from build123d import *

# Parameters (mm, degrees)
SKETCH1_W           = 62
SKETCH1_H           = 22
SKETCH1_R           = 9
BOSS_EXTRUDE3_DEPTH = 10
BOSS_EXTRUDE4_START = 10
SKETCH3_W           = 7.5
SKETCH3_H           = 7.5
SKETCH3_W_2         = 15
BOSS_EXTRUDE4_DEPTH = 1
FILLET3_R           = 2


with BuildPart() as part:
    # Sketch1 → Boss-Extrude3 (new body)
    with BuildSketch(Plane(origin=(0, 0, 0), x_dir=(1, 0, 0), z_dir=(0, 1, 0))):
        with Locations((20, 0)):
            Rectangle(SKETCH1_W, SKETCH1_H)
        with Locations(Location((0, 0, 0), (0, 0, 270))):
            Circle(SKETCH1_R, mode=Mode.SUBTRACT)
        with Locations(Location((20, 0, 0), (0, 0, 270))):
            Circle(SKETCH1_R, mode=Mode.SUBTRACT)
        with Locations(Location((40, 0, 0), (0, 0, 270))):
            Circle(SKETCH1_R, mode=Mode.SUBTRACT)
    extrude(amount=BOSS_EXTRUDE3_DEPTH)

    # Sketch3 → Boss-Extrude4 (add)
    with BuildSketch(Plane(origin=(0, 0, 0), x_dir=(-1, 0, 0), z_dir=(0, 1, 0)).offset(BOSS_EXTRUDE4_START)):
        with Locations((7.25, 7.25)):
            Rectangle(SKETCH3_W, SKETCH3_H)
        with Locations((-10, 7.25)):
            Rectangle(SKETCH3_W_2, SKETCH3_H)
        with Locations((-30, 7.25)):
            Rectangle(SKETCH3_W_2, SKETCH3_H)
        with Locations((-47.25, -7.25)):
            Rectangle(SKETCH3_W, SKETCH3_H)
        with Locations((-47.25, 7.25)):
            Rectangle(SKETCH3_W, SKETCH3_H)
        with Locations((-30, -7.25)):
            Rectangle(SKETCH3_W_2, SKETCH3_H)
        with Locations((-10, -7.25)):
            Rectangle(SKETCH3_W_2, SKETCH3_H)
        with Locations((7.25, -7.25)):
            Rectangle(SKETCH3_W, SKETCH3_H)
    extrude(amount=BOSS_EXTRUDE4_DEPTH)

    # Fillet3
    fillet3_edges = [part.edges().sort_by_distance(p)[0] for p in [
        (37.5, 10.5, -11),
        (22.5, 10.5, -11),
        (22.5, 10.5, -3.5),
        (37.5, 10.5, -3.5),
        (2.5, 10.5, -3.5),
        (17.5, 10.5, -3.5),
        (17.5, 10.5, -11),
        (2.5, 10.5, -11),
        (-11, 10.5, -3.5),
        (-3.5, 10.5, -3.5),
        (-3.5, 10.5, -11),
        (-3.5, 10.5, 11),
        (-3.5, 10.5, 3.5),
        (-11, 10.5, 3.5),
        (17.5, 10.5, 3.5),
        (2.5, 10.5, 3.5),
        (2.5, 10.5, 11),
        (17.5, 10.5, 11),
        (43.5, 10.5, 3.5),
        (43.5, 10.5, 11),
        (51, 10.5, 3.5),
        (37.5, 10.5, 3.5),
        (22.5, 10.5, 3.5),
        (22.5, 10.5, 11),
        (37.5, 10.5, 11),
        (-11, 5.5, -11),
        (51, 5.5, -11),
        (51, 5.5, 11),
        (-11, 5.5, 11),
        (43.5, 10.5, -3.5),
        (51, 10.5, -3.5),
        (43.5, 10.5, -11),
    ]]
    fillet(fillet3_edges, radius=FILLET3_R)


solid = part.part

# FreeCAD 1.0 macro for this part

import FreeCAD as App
import Part
import Sketcher
Q = App.Units.Quantity


def edges_at(feature, points):
    """Names of the edges that pass closest to the given points."""
    edges = feature.Shape.Edges
    near = lambda p: min(range(len(edges)), key=lambda i: edges[i].distToShape(Part.Vertex(*p))[0])
    return sorted({f"Edge{near(p) + 1}" for p in points})

doc = App.newDocument("Part")
body = doc.addObject("PartDesign::Body", "Body")

sketch1 = doc.addObject("Sketcher::SketchObject", "Sketch")
body.addObject(sketch1)
sketch1.AttachmentSupport = (doc.XZ_Plane, [""])
sketch1.MapMode = "FlatFace"
sketch1.addGeometry([
    Part.LineSegment(App.Vector(-11, -11, 0), App.Vector(-11, 11, 0)),
    Part.LineSegment(App.Vector(-11, 11, 0), App.Vector(51, 11, 0)),
    Part.LineSegment(App.Vector(51, 11, 0), App.Vector(51, -11, 0)),
    Part.LineSegment(App.Vector(51, -11, 0), App.Vector(-11, -11, 0)),
    Part.Circle(App.Vector(0, 0, 0), App.Vector(0, 0, 1), 9),
    Part.Circle(App.Vector(20, 0, 0), App.Vector(0, 0, 1), 9),
    Part.Circle(App.Vector(40, 0, 0), App.Vector(0, 0, 1), 9),
], False)
sketch1.addConstraint([
    Sketcher.Constraint("Coincident", 0, 2, 1, 1),
    Sketcher.Constraint("Coincident", 1, 2, 2, 1),
    Sketcher.Constraint("Coincident", 2, 2, 3, 1),
    Sketcher.Constraint("Coincident", 3, 2, 0, 1),
    Sketcher.Constraint("Vertical", 0),
    Sketcher.Constraint("Horizontal", 1),
    Sketcher.Constraint("Vertical", 2),
    Sketcher.Constraint("Horizontal", 3),
    Sketcher.Constraint("Coincident", 4, 3, -1, 1),
    Sketcher.Constraint("Equal", 4, 5),
    Sketcher.Constraint("Equal", 5, 6),
    Sketcher.Constraint("PointOnObject", 5, 3, -1),
    Sketcher.Constraint("PointOnObject", 6, 3, -1),
    Sketcher.Constraint("Diameter", 4, Q("18 mm")),
    Sketcher.Constraint("DistanceX", 1, 1, 1, 2, Q("62 mm")),
    Sketcher.Constraint("DistanceY", 0, 1, 0, 2, Q("22 mm")),
    Sketcher.Constraint("DistanceX", -1, 1, 5, 3, Q("20 mm")),
    Sketcher.Constraint("DistanceX", -1, 1, 6, 3, Q("40 mm")),
    Sketcher.Constraint("DistanceX", 0, 2, -1, 1, Q("11 mm")),
    Sketcher.Constraint("DistanceY", -1, 1, 0, 2, Q("11 mm")),
])
pad1 = doc.addObject("PartDesign::Pad", "Pad")
body.addObject(pad1)
pad1.Profile = sketch1
pad1.Length = 10
pad1.Reversed = True

sketch2 = doc.addObject("Sketcher::SketchObject", "Sketch001")
body.addObject(sketch2)
sketch2.AttachmentSupport = (doc.XZ_Plane, [""])
sketch2.MapMode = "FlatFace"
sketch2.AttachmentOffset = App.Placement(App.Vector(0, 0, -10), App.Rotation())
sketch2.addGeometry([
    Part.LineSegment(App.Vector(-3.5, 11, 0), App.Vector(-3.5, 3.5, 0)),
    Part.LineSegment(App.Vector(-3.5, 3.5, 0), App.Vector(-11, 3.5, 0)),
    Part.LineSegment(App.Vector(-11, 3.5, 0), App.Vector(-11, 11, 0)),
    Part.LineSegment(App.Vector(-11, 11, 0), App.Vector(-3.5, 11, 0)),
    Part.LineSegment(App.Vector(17.5, 11, 0), App.Vector(17.5, 3.5, 0)),
    Part.LineSegment(App.Vector(17.5, 3.5, 0), App.Vector(2.5, 3.5, 0)),
    Part.LineSegment(App.Vector(2.5, 3.5, 0), App.Vector(2.5, 11, 0)),
    Part.LineSegment(App.Vector(2.5, 11, 0), App.Vector(17.5, 11, 0)),
    Part.LineSegment(App.Vector(37.5, 11, 0), App.Vector(37.5, 3.5, 0)),
    Part.LineSegment(App.Vector(37.5, 3.5, 0), App.Vector(22.5, 3.5, 0)),
    Part.LineSegment(App.Vector(22.5, 3.5, 0), App.Vector(22.5, 11, 0)),
    Part.LineSegment(App.Vector(22.5, 11, 0), App.Vector(37.5, 11, 0)),
    Part.LineSegment(App.Vector(51, -3.5, 0), App.Vector(51, -11, 0)),
    Part.LineSegment(App.Vector(51, -11, 0), App.Vector(43.5, -11, 0)),
    Part.LineSegment(App.Vector(43.5, -11, 0), App.Vector(43.5, -3.5, 0)),
    Part.LineSegment(App.Vector(43.5, -3.5, 0), App.Vector(51, -3.5, 0)),
    Part.LineSegment(App.Vector(51, 11, 0), App.Vector(51, 3.5, 0)),
    Part.LineSegment(App.Vector(51, 3.5, 0), App.Vector(43.5, 3.5, 0)),
    Part.LineSegment(App.Vector(43.5, 3.5, 0), App.Vector(43.5, 11, 0)),
    Part.LineSegment(App.Vector(43.5, 11, 0), App.Vector(51, 11, 0)),
    Part.LineSegment(App.Vector(37.5, -3.5, 0), App.Vector(37.5, -11, 0)),
    Part.LineSegment(App.Vector(37.5, -11, 0), App.Vector(22.5, -11, 0)),
    Part.LineSegment(App.Vector(22.5, -11, 0), App.Vector(22.5, -3.5, 0)),
    Part.LineSegment(App.Vector(22.5, -3.5, 0), App.Vector(37.5, -3.5, 0)),
    Part.LineSegment(App.Vector(17.5, -3.5, 0), App.Vector(17.5, -11, 0)),
    Part.LineSegment(App.Vector(17.5, -11, 0), App.Vector(2.5, -11, 0)),
    Part.LineSegment(App.Vector(2.5, -11, 0), App.Vector(2.5, -3.5, 0)),
    Part.LineSegment(App.Vector(2.5, -3.5, 0), App.Vector(17.5, -3.5, 0)),
    Part.LineSegment(App.Vector(-3.5, -3.5, 0), App.Vector(-3.5, -11, 0)),
    Part.LineSegment(App.Vector(-3.5, -11, 0), App.Vector(-11, -11, 0)),
    Part.LineSegment(App.Vector(-11, -11, 0), App.Vector(-11, -3.5, 0)),
    Part.LineSegment(App.Vector(-11, -3.5, 0), App.Vector(-3.5, -3.5, 0)),
], False)
sketch2.addConstraint([
    Sketcher.Constraint("Coincident", 0, 2, 1, 1),
    Sketcher.Constraint("Coincident", 1, 2, 2, 1),
    Sketcher.Constraint("Coincident", 2, 2, 3, 1),
    Sketcher.Constraint("Coincident", 3, 2, 0, 1),
    Sketcher.Constraint("Coincident", 4, 2, 5, 1),
    Sketcher.Constraint("Coincident", 5, 2, 6, 1),
    Sketcher.Constraint("Coincident", 6, 2, 7, 1),
    Sketcher.Constraint("Coincident", 7, 2, 4, 1),
    Sketcher.Constraint("Coincident", 8, 2, 9, 1),
    Sketcher.Constraint("Coincident", 9, 2, 10, 1),
    Sketcher.Constraint("Coincident", 10, 2, 11, 1),
    Sketcher.Constraint("Coincident", 11, 2, 8, 1),
    Sketcher.Constraint("Coincident", 12, 2, 13, 1),
    Sketcher.Constraint("Coincident", 13, 2, 14, 1),
    Sketcher.Constraint("Coincident", 14, 2, 15, 1),
    Sketcher.Constraint("Coincident", 15, 2, 12, 1),
    Sketcher.Constraint("Coincident", 16, 2, 17, 1),
    Sketcher.Constraint("Coincident", 17, 2, 18, 1),
    Sketcher.Constraint("Coincident", 18, 2, 19, 1),
    Sketcher.Constraint("Coincident", 19, 2, 16, 1),
    Sketcher.Constraint("Coincident", 20, 2, 21, 1),
    Sketcher.Constraint("Coincident", 21, 2, 22, 1),
    Sketcher.Constraint("Coincident", 22, 2, 23, 1),
    Sketcher.Constraint("Coincident", 23, 2, 20, 1),
    Sketcher.Constraint("Coincident", 24, 2, 25, 1),
    Sketcher.Constraint("Coincident", 25, 2, 26, 1),
    Sketcher.Constraint("Coincident", 26, 2, 27, 1),
    Sketcher.Constraint("Coincident", 27, 2, 24, 1),
    Sketcher.Constraint("Coincident", 28, 2, 29, 1),
    Sketcher.Constraint("Coincident", 29, 2, 30, 1),
    Sketcher.Constraint("Coincident", 30, 2, 31, 1),
    Sketcher.Constraint("Coincident", 31, 2, 28, 1),
    Sketcher.Constraint("Vertical", 0),
    Sketcher.Constraint("Horizontal", 1),
    Sketcher.Constraint("Vertical", 2),
    Sketcher.Constraint("Horizontal", 3),
    Sketcher.Constraint("Vertical", 4),
    Sketcher.Constraint("Horizontal", 5),
    Sketcher.Constraint("Vertical", 6),
    Sketcher.Constraint("Horizontal", 7),
    Sketcher.Constraint("Vertical", 8),
    Sketcher.Constraint("Horizontal", 9),
    Sketcher.Constraint("Vertical", 10),
    Sketcher.Constraint("Horizontal", 11),
    Sketcher.Constraint("Vertical", 12),
    Sketcher.Constraint("Horizontal", 13),
    Sketcher.Constraint("Vertical", 14),
    Sketcher.Constraint("Horizontal", 15),
    Sketcher.Constraint("Vertical", 16),
    Sketcher.Constraint("Horizontal", 17),
    Sketcher.Constraint("Vertical", 18),
    Sketcher.Constraint("Horizontal", 19),
    Sketcher.Constraint("Vertical", 20),
    Sketcher.Constraint("Horizontal", 21),
    Sketcher.Constraint("Vertical", 22),
    Sketcher.Constraint("Horizontal", 23),
    Sketcher.Constraint("Vertical", 24),
    Sketcher.Constraint("Horizontal", 25),
    Sketcher.Constraint("Vertical", 26),
    Sketcher.Constraint("Horizontal", 27),
    Sketcher.Constraint("Vertical", 28),
    Sketcher.Constraint("Horizontal", 29),
    Sketcher.Constraint("Vertical", 30),
    Sketcher.Constraint("Horizontal", 31),
    Sketcher.Constraint("Symmetric", 15, 2, 16, 2, -1),
    Sketcher.Constraint("Symmetric", 13, 2, 18, 2, -1),
    Sketcher.Constraint("Symmetric", 11, 2, 20, 2, -1),
    Sketcher.Constraint("Symmetric", 9, 2, 22, 2, -1),
    Sketcher.Constraint("Symmetric", 7, 2, 24, 2, -1),
    Sketcher.Constraint("Symmetric", 5, 2, 26, 2, -1),
    Sketcher.Constraint("Symmetric", 3, 2, 28, 2, -1),
    Sketcher.Constraint("Symmetric", 1, 2, 30, 2, -1),
    Sketcher.Constraint("Horizontal", 1, 2, 4, 2),
    Sketcher.Constraint("Horizontal", 3, 2, 6, 2),
    Sketcher.Constraint("Horizontal", 5, 2, 8, 2),
    Sketcher.Constraint("Horizontal", 7, 2, 10, 2),
    Sketcher.Constraint("Horizontal", 9, 2, 16, 2),
    Sketcher.Constraint("Horizontal", 11, 2, 18, 2),
    Sketcher.Constraint("Equal", 7, 9),
    Sketcher.Constraint("Equal", 3, 13),
    Sketcher.Constraint("Equal", 31, 0),
    Sketcher.Constraint("DistanceX", 5, 2, 5, 1, Q("15 mm")),
    Sketcher.Constraint("DistanceX", 1, 2, 1, 1, Q("7.5 mm")),
    Sketcher.Constraint("DistanceX", 1, 2, -1, 1, Q("11 mm")),
    Sketcher.Constraint("DistanceY", -1, 1, 2, 2, Q("11 mm")),
    Sketcher.Constraint("DistanceX", -1, 1, 12, 2, Q("51 mm")),
    Sketcher.Constraint("DistanceX", 0, 2, 4, 2, Q("21 mm")),
    Sketcher.Constraint("DistanceX", 4, 2, 8, 2, Q("20 mm")),
])
pad2 = doc.addObject("PartDesign::Pad", "Pad001")
body.addObject(pad2)
pad2.Profile = sketch2
pad2.Length = 1
pad2.Reversed = True
doc.recompute()

fillet = doc.addObject("PartDesign::Fillet", "Fillet")
body.addObject(fillet)
fillet.Base = (pad2, edges_at(pad2, [
    (37.5, 10.5, -11),
    (22.5, 10.5, -11),
    (22.5, 10.5, -3.5),
    (37.5, 10.5, -3.5),
    (2.5, 10.5, -3.5),
    (17.5, 10.5, -3.5),
    (17.5, 10.5, -11),
    (2.5, 10.5, -11),
    (-11, 10.5, -3.5),
    (-3.5, 10.5, -3.5),
    (-3.5, 10.5, -11),
    (-3.5, 10.5, 11),
    (-3.5, 10.5, 3.5),
    (-11, 10.5, 3.5),
    (17.5, 10.5, 3.5),
    (2.5, 10.5, 3.5),
    (2.5, 10.5, 11),
    (17.5, 10.5, 11),
    (43.5, 10.5, 3.5),
    (43.5, 10.5, 11),
    (51, 10.5, 3.5),
    (37.5, 10.5, 3.5),
    (22.5, 10.5, 3.5),
    (22.5, 10.5, 11),
    (37.5, 10.5, 11),
    (-11, 5.5, -11),
    (51, 5.5, -11),
    (51, 5.5, 11),
    (-11, 5.5, 11),
    (43.5, 10.5, -3.5),
    (51, 10.5, -3.5),
    (43.5, 10.5, -11),
]))
fillet.Radius = 2

doc.recompute()
